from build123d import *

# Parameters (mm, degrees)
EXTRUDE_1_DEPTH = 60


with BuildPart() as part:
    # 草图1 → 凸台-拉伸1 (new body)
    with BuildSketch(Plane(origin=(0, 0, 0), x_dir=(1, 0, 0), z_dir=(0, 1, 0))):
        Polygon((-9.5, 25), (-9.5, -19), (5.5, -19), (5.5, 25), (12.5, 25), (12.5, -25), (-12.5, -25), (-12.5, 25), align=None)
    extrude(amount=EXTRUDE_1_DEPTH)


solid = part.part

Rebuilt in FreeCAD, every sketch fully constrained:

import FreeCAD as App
import Part
import Sketcher

V = App.Vector


def add_polygon(sketch, points):
    """Adds a closed chain of lines whose ends are joined by coincident constraints."""
    first, n = sketch.GeometryCount, len(points)
    for a, b in zip(points, points[1:] + points[:1]):
        sketch.addGeometry(Part.LineSegment(App.Vector(*a, 0), App.Vector(*b, 0)), False)
    for i in range(n):
        sketch.addConstraint(Sketcher.Constraint("Coincident", first + i, 2, first + (i + 1) % n, 1))

doc = App.newDocument("Part")
params = doc.addObject("Spreadsheet::Sheet", "Params")
for row, (alias, value) in enumerate([
    ("sketch1_width", "3 mm"),
    ("sketch1_width2", "25 mm"),
    ("sketch1_width3", "7 mm"),
    ("sketch1_height", "44 mm"),
    ("sketch1_height2", "50 mm"),
    ("pad1_length", "60 mm"),
], start=1):
    params.set(f"A{row}", alias)
    params.set(f"B{row}", "=" + value)
    params.setAlias(f"B{row}", alias)

body = doc.addObject("PartDesign::Body", "Body")

# Sketch on XZ plane
sketch1 = doc.addObject("Sketcher::SketchObject", "Sketch")
body.addObject(sketch1)
sketch1.AttachmentSupport = (doc.XZ_Plane, [""])
sketch1.MapMode = "FlatFace"
add_polygon(sketch1, [(-9.5, 19), (-9.5, -25), (-12.5, -25), (-12.5, 25), (12.5, 25), (12.5, -25), (5.5, -25), (5.5, 19)])  # lines 0-7
sketch1.addConstraint(Sketcher.Constraint("Vertical", 0))
sketch1.addConstraint(Sketcher.Constraint("Horizontal", 1))
sketch1.addConstraint(Sketcher.Constraint("Vertical", 2))
sketch1.addConstraint(Sketcher.Constraint("Horizontal", 3))
sketch1.addConstraint(Sketcher.Constraint("Vertical", 4))
sketch1.addConstraint(Sketcher.Constraint("Horizontal", 5))
sketch1.addConstraint(Sketcher.Constraint("Vertical", 6))
sketch1.addConstraint(Sketcher.Constraint("Horizontal", 7))
sketch1.addConstraint(Sketcher.Constraint("Symmetric", 1, 2, 3, 2, -1, 1))
sketch1.addConstraint(Sketcher.Constraint("Horizontal", 1, 2, 4, 2))
sketch1.addConstraint(Sketcher.Constraint("DistanceX", 1, 2, 1, 1, 3.0))
sketch1.addConstraint(Sketcher.Constraint("DistanceX", 3, 1, 3, 2, 25.0))
sketch1.addConstraint(Sketcher.Constraint("DistanceX", 5, 2, 5, 1, 7.0))
sketch1.addConstraint(Sketcher.Constraint("DistanceY", 0, 2, 0, 1, 44.0))
sketch1.addConstraint(Sketcher.Constraint("DistanceY", 2, 1, 2, 2, 50.0))
sketch1.setExpression("Constraints[18]", "Params.sketch1_width")
sketch1.setExpression("Constraints[19]", "Params.sketch1_width2")
sketch1.setExpression("Constraints[20]", "Params.sketch1_width3")
sketch1.setExpression("Constraints[21]", "Params.sketch1_height")
sketch1.setExpression("Constraints[22]", "Params.sketch1_height2")
pad1 = doc.addObject("PartDesign::Pad", "Pad")
body.addObject(pad1)
pad1.Profile = sketch1
pad1.setExpression("Length", "Params.pad1_length")
pad1.Reversed = True

doc.recompute()
